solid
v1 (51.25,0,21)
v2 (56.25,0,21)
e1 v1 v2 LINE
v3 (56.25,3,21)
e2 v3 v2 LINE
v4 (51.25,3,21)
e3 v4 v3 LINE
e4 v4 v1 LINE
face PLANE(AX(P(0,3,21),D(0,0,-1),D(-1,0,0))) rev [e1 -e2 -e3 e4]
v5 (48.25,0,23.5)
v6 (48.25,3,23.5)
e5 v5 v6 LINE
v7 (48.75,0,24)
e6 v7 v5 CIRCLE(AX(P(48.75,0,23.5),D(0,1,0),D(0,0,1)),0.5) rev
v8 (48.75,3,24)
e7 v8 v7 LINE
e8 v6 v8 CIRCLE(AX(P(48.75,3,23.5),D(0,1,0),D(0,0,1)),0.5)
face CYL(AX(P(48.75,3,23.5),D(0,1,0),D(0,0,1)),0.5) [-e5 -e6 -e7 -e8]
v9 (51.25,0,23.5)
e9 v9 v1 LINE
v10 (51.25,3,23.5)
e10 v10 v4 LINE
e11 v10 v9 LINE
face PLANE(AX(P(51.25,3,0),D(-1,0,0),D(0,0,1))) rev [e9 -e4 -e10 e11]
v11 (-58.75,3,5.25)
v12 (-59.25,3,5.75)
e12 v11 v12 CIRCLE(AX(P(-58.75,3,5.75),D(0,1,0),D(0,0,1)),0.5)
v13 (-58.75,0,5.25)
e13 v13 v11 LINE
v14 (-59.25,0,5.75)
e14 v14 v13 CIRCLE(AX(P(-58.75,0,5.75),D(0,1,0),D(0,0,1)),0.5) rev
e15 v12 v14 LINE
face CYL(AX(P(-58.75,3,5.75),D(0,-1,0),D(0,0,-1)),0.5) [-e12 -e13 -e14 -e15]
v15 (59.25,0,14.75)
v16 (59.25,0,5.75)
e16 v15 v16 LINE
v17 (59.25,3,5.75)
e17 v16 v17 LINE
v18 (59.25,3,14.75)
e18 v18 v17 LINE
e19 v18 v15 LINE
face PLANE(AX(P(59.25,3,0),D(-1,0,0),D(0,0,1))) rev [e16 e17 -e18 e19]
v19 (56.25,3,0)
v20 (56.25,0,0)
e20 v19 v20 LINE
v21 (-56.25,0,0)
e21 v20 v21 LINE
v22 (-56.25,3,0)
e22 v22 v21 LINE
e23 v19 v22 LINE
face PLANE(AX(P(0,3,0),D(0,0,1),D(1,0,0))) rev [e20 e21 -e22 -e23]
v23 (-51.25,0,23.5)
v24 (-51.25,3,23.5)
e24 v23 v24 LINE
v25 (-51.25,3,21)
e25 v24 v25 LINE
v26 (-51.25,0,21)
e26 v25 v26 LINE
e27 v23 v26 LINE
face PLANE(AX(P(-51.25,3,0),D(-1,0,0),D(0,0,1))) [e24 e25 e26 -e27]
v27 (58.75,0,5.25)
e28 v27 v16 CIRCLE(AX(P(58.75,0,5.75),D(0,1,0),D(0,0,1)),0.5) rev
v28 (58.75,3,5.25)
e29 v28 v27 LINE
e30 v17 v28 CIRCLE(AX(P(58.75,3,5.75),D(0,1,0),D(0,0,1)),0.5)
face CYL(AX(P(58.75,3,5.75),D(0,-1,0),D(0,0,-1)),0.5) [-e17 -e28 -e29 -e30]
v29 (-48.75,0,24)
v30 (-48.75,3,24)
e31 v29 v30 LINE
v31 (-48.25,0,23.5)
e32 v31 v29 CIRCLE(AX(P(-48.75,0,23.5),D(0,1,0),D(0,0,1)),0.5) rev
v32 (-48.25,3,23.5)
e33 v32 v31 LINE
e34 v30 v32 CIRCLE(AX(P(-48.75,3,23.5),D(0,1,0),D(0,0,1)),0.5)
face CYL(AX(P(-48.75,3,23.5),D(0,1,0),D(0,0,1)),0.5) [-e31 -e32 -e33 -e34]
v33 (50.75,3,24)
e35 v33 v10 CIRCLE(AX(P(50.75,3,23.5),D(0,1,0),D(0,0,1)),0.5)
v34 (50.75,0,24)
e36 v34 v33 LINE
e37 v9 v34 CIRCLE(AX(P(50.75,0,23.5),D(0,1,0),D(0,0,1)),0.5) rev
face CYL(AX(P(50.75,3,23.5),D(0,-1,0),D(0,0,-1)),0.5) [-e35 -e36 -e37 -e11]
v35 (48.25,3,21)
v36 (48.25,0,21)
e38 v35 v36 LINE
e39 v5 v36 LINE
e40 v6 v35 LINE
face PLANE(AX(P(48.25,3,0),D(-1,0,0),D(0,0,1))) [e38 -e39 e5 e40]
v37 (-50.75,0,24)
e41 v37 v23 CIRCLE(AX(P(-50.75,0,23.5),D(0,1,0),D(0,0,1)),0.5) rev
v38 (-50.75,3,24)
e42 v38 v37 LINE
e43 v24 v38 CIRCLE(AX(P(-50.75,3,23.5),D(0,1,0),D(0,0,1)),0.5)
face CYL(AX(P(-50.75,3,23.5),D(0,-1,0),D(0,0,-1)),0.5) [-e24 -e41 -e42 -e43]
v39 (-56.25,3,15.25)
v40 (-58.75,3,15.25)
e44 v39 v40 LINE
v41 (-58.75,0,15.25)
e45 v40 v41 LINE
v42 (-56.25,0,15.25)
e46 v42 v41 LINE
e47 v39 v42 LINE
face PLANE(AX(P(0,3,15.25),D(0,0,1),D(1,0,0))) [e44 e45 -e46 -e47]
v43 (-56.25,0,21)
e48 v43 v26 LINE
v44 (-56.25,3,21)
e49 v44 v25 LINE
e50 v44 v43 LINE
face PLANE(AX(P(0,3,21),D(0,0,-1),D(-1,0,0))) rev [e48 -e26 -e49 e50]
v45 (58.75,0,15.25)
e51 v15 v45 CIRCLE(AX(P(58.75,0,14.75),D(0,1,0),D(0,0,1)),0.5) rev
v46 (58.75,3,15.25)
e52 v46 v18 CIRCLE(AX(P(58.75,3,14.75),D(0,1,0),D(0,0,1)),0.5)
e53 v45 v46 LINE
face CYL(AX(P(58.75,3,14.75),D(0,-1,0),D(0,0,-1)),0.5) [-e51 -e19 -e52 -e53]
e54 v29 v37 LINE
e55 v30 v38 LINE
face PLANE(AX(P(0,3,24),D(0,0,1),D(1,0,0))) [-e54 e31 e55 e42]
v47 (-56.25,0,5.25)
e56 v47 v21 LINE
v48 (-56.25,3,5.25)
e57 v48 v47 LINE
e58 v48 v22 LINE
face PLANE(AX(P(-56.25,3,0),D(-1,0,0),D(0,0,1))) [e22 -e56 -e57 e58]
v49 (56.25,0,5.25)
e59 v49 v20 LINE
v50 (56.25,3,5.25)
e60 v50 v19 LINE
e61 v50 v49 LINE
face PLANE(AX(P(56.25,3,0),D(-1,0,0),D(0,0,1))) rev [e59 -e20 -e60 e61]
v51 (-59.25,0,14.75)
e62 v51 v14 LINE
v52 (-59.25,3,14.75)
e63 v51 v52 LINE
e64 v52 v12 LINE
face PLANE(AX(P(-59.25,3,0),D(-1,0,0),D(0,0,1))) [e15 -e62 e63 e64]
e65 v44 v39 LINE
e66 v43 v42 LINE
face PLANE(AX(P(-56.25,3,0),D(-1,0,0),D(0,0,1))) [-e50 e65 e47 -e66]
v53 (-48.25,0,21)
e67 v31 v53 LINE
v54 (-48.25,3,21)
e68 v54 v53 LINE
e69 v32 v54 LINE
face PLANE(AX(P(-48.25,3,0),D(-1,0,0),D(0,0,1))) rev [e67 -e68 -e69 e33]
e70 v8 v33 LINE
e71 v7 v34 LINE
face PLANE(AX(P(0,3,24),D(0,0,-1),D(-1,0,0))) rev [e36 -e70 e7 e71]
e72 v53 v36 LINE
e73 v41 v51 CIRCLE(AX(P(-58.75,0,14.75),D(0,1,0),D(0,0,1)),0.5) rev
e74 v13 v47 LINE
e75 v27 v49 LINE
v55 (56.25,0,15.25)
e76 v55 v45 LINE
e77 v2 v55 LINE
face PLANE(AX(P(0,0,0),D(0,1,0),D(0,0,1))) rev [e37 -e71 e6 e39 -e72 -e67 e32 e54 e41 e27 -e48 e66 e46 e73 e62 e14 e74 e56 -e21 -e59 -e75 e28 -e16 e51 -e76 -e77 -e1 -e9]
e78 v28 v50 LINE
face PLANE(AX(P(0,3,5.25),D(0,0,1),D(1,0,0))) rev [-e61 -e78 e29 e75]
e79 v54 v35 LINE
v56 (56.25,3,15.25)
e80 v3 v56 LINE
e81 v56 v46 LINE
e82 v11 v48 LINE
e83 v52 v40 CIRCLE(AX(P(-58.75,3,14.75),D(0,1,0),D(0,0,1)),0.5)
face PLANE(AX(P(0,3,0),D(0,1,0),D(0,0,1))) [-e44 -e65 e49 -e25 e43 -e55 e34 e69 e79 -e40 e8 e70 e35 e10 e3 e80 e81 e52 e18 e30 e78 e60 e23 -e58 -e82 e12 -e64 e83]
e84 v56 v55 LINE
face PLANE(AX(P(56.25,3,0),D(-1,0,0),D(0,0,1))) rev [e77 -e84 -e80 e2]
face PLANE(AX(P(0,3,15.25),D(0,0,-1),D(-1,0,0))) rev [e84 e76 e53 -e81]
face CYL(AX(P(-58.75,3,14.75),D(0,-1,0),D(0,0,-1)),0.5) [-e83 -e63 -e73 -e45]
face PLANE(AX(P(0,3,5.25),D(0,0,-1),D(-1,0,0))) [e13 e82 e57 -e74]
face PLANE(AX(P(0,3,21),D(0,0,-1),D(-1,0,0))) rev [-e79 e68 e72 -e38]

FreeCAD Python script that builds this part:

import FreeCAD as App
import Part
import Sketcher
from FreeCAD import Vector
Q = App.Units.Quantity


def edges_at(feature, points):
    """Names of the edges that pass closest to the given points."""
    edges = feature.Shape.Edges
    near = lambda p: min(range(len(edges)), key=lambda i: edges[i].distToShape(Part.Vertex(*p))[0])
    return sorted({f"Edge{near(p) + 1}" for p in points})


def add_polygon(sketch, points):
    """Adds a closed chain of lines whose ends are joined by coincident constraints."""
    first, n = sketch.GeometryCount, len(points)
    for a, b in zip(points, points[1:] + points[:1]):
        sketch.addGeometry(Part.LineSegment(App.Vector(*a, 0), App.Vector(*b, 0)), False)
    for i in range(n):
        sketch.addConstraint(Sketcher.Constraint("Coincident", first + i, 2, first + (i + 1) % n, 1))

doc = App.newDocument("Part")
body = doc.addObject("PartDesign::Body", "Body")

# Sketch on XZ plane
sketch1 = doc.addObject("Sketcher::SketchObject", "Sketch")
body.addObject(sketch1)
sketch1.AttachmentSupport = (doc.XZ_Plane, [""])
sketch1.MapMode = "FlatFace"
add_polygon(sketch1, [(-56.2, 21), (-51.2, 21), (-51.2, 24), (-48.2, 24), (-48.2, 21), (48.2, 21), (48.2, 24), (51.2, 24), (51.2, 21), (56.2, 21), (56.2, 15.2), (59.2, 15.2), (59.2, 5.2), (56.2, 5.2), (56.2, 0), (-56.2, 0), (-56.2, 5.2), (-59.2, 5.2), (-59.2, 15.2), (-56.2, 15.2)])  # lines 0-19
sketch1.addConstraint([
    Sketcher.Constraint("Horizontal", 0),
    Sketcher.Constraint("Vertical", 1),
    Sketcher.Constraint("Horizontal", 2),
    Sketcher.Constraint("Vertical", 3),
    Sketcher.Constraint("Horizontal", 4),
    Sketcher.Constraint("Vertical", 5),
    Sketcher.Constraint("Horizontal", 6),
    Sketcher.Constraint("Vertical", 7),
    Sketcher.Constraint("Horizontal", 8),
    Sketcher.Constraint("Vertical", 9),
    Sketcher.Constraint("Horizontal", 10),
    Sketcher.Constraint("Vertical", 11),
    Sketcher.Constraint("Horizontal", 12),
    Sketcher.Constraint("Vertical", 13),
    Sketcher.Constraint("Horizontal", 14),
    Sketcher.Constraint("Vertical", 15),
    Sketcher.Constraint("Horizontal", 16),
    Sketcher.Constraint("Vertical", 17),
    Sketcher.Constraint("Horizontal", 18),
    Sketcher.Constraint("Vertical", 19),
    Sketcher.Constraint("Symmetric", 13, 2, 14, 2, -1, 1),
    Sketcher.Constraint("Symmetric", 2, 2, 5, 2, -2),
    Sketcher.Constraint("Symmetric", 0, 2, 7, 2, -2),
    Sketcher.Constraint("Symmetric", 11, 2, 16, 2, -2),
    Sketcher.Constraint("Symmetric", 9, 2, 18, 2, -2),
    Sketcher.Constraint("Horizontal", 0, 2, 3, 2),
    Sketcher.Constraint("Vertical", 9, 2, 12, 2),
    Sketcher.Constraint("Equal", 6, 10),
    Sketcher.Constraint("Equal", 18, 1),
    Sketcher.Constraint("DistanceX", 0, 1, 0, 2, Q("5 mm")),
    Sketcher.Constraint("DistanceX", 2, 1, 2, 2, Q("3 mm")),
    Sketcher.Constraint("DistanceY", 11, 2, 11, 1, Q("10 mm")),
    Sketcher.Constraint("DistanceX", 4, 1, 4, 2, Q("96.5 mm")),
    Sketcher.Constraint("DistanceY", -1, 1, 0, 2, Q("21 mm")),
    Sketcher.Constraint("DistanceY", 9, 2, 9, 1, Q("5.75 mm")),
])
pad1 = doc.addObject("PartDesign::Pad", "Pad")
body.addObject(pad1)
pad1.Profile = sketch1
pad1.Length = 3
pad1.Reversed = True
doc.recompute()

fillet = doc.addObject("PartDesign::Fillet", "Fillet")
body.addObject(fillet)
fillet.Base = (pad1, edges_at(pad1, [
    (-59.25, 1.5, 15.25),
    (-59.25, 1.5, 5.25),
    (59.25, 1.5, 5.25),
    (59.25, 1.5, 15.25),
    (51.25, 1.5, 24),
    (48.25, 1.5, 24),
    (-48.25, 1.5, 24),
    (-51.25, 1.5, 24),
]))
fillet.Radius = 0.5

doc.recompute()
